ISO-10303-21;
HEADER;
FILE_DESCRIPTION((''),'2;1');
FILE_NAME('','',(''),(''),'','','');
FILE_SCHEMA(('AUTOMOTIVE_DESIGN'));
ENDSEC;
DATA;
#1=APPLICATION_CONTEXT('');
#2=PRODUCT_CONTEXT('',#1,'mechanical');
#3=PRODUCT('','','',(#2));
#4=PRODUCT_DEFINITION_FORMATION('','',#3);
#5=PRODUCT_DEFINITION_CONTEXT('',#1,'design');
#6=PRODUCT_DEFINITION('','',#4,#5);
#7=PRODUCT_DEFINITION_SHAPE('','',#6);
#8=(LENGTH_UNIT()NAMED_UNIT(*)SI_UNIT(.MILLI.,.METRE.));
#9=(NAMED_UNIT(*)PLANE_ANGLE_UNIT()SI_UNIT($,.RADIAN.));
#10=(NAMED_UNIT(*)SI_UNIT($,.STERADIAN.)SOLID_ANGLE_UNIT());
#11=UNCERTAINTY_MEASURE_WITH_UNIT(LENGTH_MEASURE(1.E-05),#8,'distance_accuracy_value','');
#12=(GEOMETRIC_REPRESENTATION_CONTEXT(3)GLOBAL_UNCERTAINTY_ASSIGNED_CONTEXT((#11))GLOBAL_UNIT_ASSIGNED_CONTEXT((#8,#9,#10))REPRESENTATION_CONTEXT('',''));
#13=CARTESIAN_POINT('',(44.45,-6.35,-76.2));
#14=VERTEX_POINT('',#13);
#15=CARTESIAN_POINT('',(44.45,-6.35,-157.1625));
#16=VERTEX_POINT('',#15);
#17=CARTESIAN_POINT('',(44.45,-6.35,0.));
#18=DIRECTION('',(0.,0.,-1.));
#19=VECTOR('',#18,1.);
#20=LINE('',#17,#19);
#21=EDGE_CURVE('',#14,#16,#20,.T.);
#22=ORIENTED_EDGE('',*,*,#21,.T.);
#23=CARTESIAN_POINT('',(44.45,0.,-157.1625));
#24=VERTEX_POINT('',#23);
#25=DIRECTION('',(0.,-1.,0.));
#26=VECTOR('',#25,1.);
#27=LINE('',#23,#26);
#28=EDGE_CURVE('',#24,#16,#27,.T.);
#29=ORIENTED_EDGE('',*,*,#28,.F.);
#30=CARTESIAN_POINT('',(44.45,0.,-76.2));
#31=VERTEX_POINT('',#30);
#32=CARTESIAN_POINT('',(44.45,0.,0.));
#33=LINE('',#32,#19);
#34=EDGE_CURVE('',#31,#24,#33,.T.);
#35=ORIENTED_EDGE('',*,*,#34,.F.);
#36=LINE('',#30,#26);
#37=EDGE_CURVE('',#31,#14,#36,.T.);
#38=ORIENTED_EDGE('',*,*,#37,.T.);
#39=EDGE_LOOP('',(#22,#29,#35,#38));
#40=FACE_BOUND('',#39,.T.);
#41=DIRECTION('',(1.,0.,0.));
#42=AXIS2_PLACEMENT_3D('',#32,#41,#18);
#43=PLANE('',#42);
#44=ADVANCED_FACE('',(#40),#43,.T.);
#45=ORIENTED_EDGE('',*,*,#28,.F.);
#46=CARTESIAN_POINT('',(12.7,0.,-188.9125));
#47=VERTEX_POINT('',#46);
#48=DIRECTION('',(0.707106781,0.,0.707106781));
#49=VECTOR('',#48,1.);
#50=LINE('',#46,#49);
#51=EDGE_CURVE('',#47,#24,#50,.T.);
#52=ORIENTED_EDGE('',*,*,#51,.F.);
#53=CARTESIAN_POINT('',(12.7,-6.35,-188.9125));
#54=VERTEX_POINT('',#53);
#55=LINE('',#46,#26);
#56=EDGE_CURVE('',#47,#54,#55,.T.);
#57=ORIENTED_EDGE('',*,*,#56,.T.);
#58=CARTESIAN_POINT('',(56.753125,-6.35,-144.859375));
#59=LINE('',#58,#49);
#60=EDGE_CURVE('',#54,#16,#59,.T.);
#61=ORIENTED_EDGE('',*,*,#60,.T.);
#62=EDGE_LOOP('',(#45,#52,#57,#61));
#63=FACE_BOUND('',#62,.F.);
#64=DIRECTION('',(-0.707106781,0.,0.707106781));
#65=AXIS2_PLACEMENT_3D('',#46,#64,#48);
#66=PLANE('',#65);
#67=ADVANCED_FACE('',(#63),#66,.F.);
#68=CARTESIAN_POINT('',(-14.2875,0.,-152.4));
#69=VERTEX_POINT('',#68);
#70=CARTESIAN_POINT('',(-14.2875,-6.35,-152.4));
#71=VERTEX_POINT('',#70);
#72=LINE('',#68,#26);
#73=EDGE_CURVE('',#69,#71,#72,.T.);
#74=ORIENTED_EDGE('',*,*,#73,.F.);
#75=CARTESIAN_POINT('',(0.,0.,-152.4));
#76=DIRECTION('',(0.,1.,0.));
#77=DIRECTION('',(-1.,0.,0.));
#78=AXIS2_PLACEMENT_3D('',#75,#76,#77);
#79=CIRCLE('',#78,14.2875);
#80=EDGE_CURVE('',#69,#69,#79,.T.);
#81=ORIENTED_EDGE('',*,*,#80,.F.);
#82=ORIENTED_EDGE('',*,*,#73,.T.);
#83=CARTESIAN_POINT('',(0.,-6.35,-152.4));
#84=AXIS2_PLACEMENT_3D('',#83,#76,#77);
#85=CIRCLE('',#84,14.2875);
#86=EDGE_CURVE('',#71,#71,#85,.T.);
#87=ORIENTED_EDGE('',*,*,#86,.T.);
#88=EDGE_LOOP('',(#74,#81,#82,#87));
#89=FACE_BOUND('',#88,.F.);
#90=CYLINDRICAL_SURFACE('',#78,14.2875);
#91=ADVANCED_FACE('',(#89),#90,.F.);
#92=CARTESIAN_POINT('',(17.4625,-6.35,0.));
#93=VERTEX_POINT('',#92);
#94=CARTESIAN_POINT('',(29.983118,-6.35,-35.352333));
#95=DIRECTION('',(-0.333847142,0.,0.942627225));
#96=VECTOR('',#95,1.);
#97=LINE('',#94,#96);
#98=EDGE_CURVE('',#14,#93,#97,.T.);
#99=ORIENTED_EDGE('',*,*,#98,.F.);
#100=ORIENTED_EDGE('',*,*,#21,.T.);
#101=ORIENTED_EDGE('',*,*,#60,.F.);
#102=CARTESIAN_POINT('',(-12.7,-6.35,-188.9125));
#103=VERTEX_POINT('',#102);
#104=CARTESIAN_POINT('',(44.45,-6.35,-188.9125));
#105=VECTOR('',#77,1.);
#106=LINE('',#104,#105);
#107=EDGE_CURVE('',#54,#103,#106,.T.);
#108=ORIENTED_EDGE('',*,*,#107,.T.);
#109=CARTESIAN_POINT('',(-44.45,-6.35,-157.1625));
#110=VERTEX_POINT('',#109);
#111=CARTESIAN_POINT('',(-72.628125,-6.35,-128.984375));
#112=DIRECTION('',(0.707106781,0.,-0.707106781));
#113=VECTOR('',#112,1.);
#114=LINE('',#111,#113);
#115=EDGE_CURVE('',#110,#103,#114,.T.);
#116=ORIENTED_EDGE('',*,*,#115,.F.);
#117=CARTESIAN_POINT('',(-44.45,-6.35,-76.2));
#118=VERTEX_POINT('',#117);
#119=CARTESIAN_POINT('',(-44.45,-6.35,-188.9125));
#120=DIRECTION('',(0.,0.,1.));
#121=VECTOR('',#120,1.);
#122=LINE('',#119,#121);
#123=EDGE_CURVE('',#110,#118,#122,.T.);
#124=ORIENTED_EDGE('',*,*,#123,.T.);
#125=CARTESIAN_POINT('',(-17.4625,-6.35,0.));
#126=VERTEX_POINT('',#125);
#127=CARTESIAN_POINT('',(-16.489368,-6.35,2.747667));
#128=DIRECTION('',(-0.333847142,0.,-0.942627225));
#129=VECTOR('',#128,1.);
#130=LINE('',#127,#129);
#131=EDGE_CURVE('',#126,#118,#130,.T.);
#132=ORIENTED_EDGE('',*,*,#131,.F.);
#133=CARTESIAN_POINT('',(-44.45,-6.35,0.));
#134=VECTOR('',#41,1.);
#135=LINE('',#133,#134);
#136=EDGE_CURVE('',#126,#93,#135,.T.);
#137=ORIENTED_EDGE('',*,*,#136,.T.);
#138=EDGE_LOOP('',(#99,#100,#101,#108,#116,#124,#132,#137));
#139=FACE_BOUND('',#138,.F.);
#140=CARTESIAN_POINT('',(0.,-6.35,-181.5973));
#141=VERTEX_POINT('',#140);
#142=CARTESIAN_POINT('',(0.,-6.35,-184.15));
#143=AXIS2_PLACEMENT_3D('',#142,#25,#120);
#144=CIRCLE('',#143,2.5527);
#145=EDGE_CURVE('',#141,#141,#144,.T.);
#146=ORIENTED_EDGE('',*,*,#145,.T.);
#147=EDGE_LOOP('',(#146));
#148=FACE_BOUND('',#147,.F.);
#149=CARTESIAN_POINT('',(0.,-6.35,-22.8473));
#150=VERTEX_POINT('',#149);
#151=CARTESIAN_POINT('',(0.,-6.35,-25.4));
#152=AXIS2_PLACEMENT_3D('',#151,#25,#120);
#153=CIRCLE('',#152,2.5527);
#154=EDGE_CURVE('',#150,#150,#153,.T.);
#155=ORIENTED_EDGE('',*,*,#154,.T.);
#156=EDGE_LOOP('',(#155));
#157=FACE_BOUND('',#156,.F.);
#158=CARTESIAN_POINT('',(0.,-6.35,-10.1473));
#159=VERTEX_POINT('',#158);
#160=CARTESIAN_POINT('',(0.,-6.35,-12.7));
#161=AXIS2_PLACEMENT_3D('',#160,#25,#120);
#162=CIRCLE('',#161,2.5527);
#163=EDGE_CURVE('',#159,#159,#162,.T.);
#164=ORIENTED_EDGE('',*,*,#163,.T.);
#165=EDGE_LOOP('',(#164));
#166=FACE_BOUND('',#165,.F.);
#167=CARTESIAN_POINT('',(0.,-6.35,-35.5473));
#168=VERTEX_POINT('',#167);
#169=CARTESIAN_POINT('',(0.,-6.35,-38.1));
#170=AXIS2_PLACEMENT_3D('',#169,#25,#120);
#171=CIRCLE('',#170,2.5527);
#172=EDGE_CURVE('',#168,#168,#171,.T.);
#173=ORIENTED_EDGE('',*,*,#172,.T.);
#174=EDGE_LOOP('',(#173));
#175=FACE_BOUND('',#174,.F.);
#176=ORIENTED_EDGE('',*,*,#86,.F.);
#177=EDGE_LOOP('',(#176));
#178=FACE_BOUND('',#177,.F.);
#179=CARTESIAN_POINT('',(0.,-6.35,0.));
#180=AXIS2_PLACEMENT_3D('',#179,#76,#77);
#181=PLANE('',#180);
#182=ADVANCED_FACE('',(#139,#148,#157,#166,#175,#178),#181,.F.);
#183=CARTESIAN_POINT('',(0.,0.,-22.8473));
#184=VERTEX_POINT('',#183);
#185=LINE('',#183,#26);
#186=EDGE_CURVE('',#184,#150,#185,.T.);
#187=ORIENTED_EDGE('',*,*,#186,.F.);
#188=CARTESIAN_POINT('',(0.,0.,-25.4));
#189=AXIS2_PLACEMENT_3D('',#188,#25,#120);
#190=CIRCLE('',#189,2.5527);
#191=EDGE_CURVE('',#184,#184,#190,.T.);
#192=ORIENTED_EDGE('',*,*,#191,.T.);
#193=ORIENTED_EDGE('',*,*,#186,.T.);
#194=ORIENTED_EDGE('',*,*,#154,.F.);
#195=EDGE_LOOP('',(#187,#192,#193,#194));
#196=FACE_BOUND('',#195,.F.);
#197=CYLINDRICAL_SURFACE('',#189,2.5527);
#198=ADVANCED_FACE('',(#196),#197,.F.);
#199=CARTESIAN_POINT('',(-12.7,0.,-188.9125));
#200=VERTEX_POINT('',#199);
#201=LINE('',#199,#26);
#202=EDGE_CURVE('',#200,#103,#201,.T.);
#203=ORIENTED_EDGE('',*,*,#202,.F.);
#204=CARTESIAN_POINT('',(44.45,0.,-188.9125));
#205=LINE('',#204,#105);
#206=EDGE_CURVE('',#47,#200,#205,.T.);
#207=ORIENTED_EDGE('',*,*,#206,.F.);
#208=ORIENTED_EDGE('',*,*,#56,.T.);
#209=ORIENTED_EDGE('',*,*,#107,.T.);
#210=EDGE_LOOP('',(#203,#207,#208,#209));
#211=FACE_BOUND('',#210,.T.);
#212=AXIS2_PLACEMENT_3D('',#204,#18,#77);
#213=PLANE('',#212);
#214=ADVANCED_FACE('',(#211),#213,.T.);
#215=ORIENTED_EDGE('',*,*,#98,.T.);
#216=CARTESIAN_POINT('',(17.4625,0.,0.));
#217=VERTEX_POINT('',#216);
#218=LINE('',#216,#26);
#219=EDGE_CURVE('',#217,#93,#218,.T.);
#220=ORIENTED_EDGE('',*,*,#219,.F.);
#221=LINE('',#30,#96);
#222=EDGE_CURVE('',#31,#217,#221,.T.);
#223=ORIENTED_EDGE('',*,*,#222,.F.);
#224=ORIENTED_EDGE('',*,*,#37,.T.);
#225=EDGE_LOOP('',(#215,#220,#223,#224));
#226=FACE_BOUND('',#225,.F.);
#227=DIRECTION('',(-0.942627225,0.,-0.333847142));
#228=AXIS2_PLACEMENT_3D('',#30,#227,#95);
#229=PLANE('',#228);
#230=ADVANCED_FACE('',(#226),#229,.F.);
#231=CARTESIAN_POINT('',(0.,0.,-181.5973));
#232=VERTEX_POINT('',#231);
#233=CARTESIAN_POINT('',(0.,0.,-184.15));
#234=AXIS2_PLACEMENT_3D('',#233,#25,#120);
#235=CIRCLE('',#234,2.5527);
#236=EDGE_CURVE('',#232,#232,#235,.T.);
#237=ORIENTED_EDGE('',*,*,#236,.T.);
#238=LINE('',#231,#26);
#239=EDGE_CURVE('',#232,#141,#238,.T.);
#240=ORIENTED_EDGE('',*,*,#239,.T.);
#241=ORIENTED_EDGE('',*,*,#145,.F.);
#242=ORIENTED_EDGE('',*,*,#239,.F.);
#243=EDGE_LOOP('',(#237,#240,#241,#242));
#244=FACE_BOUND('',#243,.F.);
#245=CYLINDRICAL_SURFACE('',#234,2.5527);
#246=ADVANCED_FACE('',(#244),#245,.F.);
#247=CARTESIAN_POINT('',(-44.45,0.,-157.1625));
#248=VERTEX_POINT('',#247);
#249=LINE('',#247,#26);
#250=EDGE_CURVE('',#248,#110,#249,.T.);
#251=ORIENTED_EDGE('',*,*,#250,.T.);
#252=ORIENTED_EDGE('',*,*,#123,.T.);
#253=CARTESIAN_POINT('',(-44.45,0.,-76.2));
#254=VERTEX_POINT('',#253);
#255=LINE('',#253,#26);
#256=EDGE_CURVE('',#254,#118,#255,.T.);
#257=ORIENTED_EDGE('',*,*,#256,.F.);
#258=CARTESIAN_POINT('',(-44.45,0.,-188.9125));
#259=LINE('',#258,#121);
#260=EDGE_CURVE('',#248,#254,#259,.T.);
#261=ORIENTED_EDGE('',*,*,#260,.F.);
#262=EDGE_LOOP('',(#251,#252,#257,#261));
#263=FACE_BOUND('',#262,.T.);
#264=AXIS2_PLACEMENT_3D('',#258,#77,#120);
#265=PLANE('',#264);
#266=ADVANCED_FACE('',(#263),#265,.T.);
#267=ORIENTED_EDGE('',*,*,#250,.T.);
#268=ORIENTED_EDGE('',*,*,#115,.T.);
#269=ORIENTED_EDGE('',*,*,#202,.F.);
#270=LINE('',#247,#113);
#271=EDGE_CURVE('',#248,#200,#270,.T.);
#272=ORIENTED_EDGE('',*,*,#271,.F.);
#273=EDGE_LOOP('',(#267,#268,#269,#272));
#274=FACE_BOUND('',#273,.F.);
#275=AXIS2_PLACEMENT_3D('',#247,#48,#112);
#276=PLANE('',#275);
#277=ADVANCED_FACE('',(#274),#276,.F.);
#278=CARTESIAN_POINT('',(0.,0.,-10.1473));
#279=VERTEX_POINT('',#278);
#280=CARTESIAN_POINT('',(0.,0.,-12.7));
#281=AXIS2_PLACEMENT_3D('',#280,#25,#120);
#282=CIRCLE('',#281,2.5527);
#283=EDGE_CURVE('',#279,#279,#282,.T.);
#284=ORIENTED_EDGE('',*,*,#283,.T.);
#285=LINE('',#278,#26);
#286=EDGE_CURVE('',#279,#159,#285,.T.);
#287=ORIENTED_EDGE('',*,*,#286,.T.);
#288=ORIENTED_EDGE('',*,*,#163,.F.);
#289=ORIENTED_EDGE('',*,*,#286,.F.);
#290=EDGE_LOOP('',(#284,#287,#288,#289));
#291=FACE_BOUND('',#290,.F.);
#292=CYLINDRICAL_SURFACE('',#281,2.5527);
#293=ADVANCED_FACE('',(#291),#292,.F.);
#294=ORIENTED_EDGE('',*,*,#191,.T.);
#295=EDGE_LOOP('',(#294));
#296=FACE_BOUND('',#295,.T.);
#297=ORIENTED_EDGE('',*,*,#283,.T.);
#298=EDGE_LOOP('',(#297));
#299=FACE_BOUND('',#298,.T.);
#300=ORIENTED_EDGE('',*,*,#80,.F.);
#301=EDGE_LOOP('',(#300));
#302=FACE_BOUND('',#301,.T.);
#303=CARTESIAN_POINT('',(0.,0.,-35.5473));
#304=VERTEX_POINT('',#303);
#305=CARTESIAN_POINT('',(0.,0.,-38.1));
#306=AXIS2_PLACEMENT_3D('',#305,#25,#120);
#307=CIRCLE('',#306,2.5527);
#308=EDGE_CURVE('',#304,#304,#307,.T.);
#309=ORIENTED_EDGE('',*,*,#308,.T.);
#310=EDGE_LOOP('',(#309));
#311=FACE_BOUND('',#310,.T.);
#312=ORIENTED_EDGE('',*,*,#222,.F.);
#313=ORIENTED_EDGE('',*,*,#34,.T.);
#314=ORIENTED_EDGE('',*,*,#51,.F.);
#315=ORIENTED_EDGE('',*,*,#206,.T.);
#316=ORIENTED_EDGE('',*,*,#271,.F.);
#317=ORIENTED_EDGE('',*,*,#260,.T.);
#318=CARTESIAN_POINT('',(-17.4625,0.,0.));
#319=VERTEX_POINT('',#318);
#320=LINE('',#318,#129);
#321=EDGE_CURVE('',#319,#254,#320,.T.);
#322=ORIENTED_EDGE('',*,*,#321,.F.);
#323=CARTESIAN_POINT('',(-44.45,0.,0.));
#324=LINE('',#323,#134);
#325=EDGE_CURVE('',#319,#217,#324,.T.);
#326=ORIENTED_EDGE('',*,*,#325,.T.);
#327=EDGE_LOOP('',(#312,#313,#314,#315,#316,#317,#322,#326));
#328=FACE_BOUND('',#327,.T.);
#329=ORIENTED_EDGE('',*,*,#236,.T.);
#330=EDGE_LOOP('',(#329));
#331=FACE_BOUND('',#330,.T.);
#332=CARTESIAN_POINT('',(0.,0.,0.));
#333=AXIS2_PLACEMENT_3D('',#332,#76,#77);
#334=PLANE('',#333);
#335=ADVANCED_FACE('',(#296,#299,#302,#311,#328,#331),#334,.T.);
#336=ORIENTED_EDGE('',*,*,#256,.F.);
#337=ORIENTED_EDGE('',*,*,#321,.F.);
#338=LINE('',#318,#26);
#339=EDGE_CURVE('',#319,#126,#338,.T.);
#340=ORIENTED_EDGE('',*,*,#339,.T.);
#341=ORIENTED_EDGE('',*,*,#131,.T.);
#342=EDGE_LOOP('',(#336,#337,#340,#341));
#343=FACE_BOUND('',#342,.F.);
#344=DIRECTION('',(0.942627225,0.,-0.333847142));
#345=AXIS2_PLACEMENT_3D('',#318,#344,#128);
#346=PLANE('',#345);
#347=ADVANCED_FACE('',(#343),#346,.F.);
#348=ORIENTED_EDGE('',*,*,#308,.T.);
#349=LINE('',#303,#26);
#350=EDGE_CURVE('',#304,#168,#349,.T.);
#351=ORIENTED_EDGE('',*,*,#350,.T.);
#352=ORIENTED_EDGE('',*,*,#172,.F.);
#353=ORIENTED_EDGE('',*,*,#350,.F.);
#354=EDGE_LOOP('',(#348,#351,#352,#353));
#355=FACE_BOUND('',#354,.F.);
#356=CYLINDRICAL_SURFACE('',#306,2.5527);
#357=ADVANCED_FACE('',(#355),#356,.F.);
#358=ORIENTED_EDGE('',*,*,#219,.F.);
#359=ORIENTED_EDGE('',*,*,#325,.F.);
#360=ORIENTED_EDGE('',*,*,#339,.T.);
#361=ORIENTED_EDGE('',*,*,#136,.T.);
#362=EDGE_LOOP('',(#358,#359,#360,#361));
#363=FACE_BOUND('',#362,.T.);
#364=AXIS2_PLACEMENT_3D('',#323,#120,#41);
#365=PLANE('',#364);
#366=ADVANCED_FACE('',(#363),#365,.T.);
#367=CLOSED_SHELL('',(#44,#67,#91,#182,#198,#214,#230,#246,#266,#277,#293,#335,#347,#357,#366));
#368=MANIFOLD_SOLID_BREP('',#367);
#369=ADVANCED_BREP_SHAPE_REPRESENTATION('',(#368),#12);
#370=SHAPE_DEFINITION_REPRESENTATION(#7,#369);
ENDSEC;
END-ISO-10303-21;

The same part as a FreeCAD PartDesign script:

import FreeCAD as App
import Part
import Sketcher
from FreeCAD import Vector
Q = App.Units.Quantity

doc = App.newDocument("Part")
params = doc.addObject("Spreadsheet::Sheet", "Params")
for row, (alias, value) in enumerate([
    ("sketch1_diameter", "1.125 in"),
    ("sketch1_width", "3.5 in"),
    ("sketch1_height", "7.4375 in"),
    ("pad1_length", "0.25 in"),
    ("sketch2_diameter", "0.201 in"),
    ("hole_diameter", "0.201 in"),
    ("sketch3_height", "3 in"),
    ("sketch3_width", "1.25 in"),
    ("sketch4_diameter", "0.201 in"),
    ("hole2_diameter", "0.201 in"),
], start=1):
    params.set(f"A{row}", alias)
    params.set(f"B{row}", "=" + value)
    params.setAlias(f"B{row}", alias)

body = doc.addObject("PartDesign::Body", "Body")

# Sketch on XZ plane
sketch1 = doc.addObject("Sketcher::SketchObject", "Sketch")
body.addObject(sketch1)
sketch1.AttachmentSupport = (doc.XZ_Plane, [""])
sketch1.MapMode = "FlatFace"
sketch1.addGeometry(Part.LineSegment(Vector(-44.45, -188.9125, 0), Vector(-44.45, 0, 0)), False)
sketch1.addGeometry(Part.LineSegment(Vector(-44.45, 0, 0), Vector(44.45, 0, 0)), False)
sketch1.addGeometry(Part.LineSegment(Vector(44.45, 0, 0), Vector(44.45, -188.9125, 0)), False)
sketch1.addGeometry(Part.LineSegment(Vector(44.45, -188.9125, 0), Vector(-44.45, -188.9125, 0)), False)
sketch1.addGeometry(Part.Circle(Vector(0, -152.4, 0), Vector(0, 0, 1), 14.2875), False)
sketch1.addConstraint(Sketcher.Constraint("Coincident", 0, 2, 1, 1))
sketch1.addConstraint(Sketcher.Constraint("Coincident", 1, 2, 2, 1))
sketch1.addConstraint(Sketcher.Constraint("Coincident", 2, 2, 3, 1))
sketch1.addConstraint(Sketcher.Constraint("Coincident", 3, 2, 0, 1))
sketch1.addConstraint(Sketcher.Constraint("Vertical", 0))
sketch1.addConstraint(Sketcher.Constraint("Horizontal", 1))
sketch1.addConstraint(Sketcher.Constraint("Vertical", 2))
sketch1.addConstraint(Sketcher.Constraint("Horizontal", 3))
sketch1.addConstraint(Sketcher.Constraint("Symmetric", 0, 2, 1, 2, -1, 1))
sketch1.addConstraint(Sketcher.Constraint("PointOnObject", 4, 3, -2))
sketch1.addConstraint(Sketcher.Constraint("Diameter", 4, Q("1.125 in")))
sketch1.addConstraint(Sketcher.Constraint("DistanceX", 1, 1, 1, 2, Q("3.5 in")))
sketch1.addConstraint(Sketcher.Constraint("DistanceY", 4, 3, -1, 1, Q("6 in")))
sketch1.addConstraint(Sketcher.Constraint("DistanceY", 0, 1, 0, 2, Q("7.4375 in")))
sketch1.setExpression("Constraints[10]", "Params.sketch1_diameter")
sketch1.setExpression("Constraints[11]", "Params.sketch1_width")
sketch1.setExpression("Constraints[13]", "Params.sketch1_height")
pad1 = doc.addObject("PartDesign::Pad", "Pad")
body.addObject(pad1)
pad1.Profile = sketch1
pad1.setExpression("Length", "Params.pad1_length")

# Sketch on XZ plane
sketch2 = doc.addObject("Sketcher::SketchObject", "Sketch001")
body.addObject(sketch2)
sketch2.AttachmentSupport = (doc.XZ_Plane, [""])
sketch2.MapMode = "FlatFace"
sketch2.addGeometry(Part.Circle(Vector(0, -184.15, 0), Vector(0, 0, 1), 2.5527), False)
sketch2.addConstraint(Sketcher.Constraint("PointOnObject", 0, 3, -2))
sketch2.addConstraint(Sketcher.Constraint("Diameter", 0, Q("0.201 in")))
sketch2.addConstraint(Sketcher.Constraint("DistanceY", 0, 3, -1, 1, Q("7.25 in")))
sketch2.setExpression("Constraints[1]", "Params.sketch2_diameter")
doc.recompute()
hole = doc.addObject("PartDesign::Hole", "Hole")
body.addObject(hole)
hole.Profile = sketch2
hole.ThreadType = "None"
hole.setExpression("Diameter", "Params.hole_diameter")
hole.DepthType = "ThroughAll"
hole.Reversed = True

# Sketch on XZ plane
sketch3 = doc.addObject("Sketcher::SketchObject", "Sketch002")
body.addObject(sketch3)
sketch3.AttachmentSupport = (doc.XZ_Plane, [""])
sketch3.MapMode = "FlatFace"
sketch3.addGeometry(Part.LineSegment(Vector(-44.45, -188.9125, 0), Vector(-44.45, -157.1625, 0)), False)
sketch3.addGeometry(Part.LineSegment(Vector(-44.45, -157.1625, 0), Vector(-12.7, -188.9125, 0)), False)
sketch3.addGeometry(Part.LineSegment(Vector(-12.7, -188.9125, 0), Vector(-44.45, -188.9125, 0)), False)
sketch3.addGeometry(Part.LineSegment(Vector(44.45, -157.1625, 0), Vector(44.45, -188.9125, 0)), False)
sketch3.addGeometry(Part.LineSegment(Vector(44.45, -188.9125, 0), Vector(12.7, -188.9125, 0)), False)
sketch3.addGeometry(Part.LineSegment(Vector(12.7, -188.9125, 0), Vector(44.45, -157.1625, 0)), False)
sketch3.addGeometry(Part.LineSegment(Vector(-44.45, -76.2, 0), Vector(-44.45, 0, 0)), False)
sketch3.addGeometry(Part.LineSegment(Vector(-44.45, 0, 0), Vector(-17.4625, 0, 0)), False)
sketch3.addGeometry(Part.LineSegment(Vector(-17.4625, 0, 0), Vector(-44.45, -76.2, 0)), False)
sketch3.addGeometry(Part.LineSegment(Vector(44.45, -76.2, 0), Vector(17.4625, 0, 0)), False)
sketch3.addGeometry(Part.LineSegment(Vector(17.4625, 0, 0), Vector(44.45, 0, 0)), False)
sketch3.addGeometry(Part.LineSegment(Vector(44.45, 0, 0), Vector(44.45, -76.2, 0)), False)
sketch3.addConstraint(Sketcher.Constraint("Coincident", 0, 2, 1, 1))
sketch3.addConstraint(Sketcher.Constraint("Coincident", 1, 2, 2, 1))
sketch3.addConstraint(Sketcher.Constraint("Coincident", 2, 2, 0, 1))
sketch3.addConstraint(Sketcher.Constraint("Coincident", 3, 2, 4, 1))
sketch3.addConstraint(Sketcher.Constraint("Coincident", 4, 2, 5, 1))
sketch3.addConstraint(Sketcher.Constraint("Coincident", 5, 2, 3, 1))
sketch3.addConstraint(Sketcher.Constraint("Coincident", 6, 2, 7, 1))
sketch3.addConstraint(Sketcher.Constraint("Coincident", 7, 2, 8, 1))
sketch3.addConstraint(Sketcher.Constraint("Coincident", 8, 2, 6, 1))
sketch3.addConstraint(Sketcher.Constraint("Coincident", 9, 2, 10, 1))
sketch3.addConstraint(Sketcher.Constraint("Coincident", 10, 2, 11, 1))
sketch3.addConstraint(Sketcher.Constraint("Coincident", 11, 2, 9, 1))
sketch3.addConstraint(Sketcher.Constraint("Vertical", 0))
sketch3.addConstraint(Sketcher.Constraint("Horizontal", 2))
sketch3.addConstraint(Sketcher.Constraint("Vertical", 3))
sketch3.addConstraint(Sketcher.Constraint("Horizontal", 4))
sketch3.addConstraint(Sketcher.Constraint("Vertical", 6))
sketch3.addConstraint(Sketcher.Constraint("Horizontal", 7))
sketch3.addConstraint(Sketcher.Constraint("Horizontal", 10))
sketch3.addConstraint(Sketcher.Constraint("Vertical", 11))
sketch3.addConstraint(Sketcher.Constraint("Symmetric", 7, 2, 9, 2, -1, 1))
sketch3.addConstraint(Sketcher.Constraint("Symmetric", 2, 2, 3, 2, -2))
sketch3.addConstraint(Sketcher.Constraint("Symmetric", 6, 2, 10, 2, -2))
sketch3.addConstraint(Sketcher.Constraint("Perpendicular", 1, 5))
sketch3.addConstraint(Sketcher.Constraint("Horizontal", 0, 2, 5, 2))
sketch3.addConstraint(Sketcher.Constraint("Horizontal", 8, 2, 11, 2))
sketch3.addConstraint(Sketcher.Constraint("Vertical", 2, 2, 6, 2))
sketch3.addConstraint(Sketcher.Constraint("Equal", 2, 4))
sketch3.addConstraint(Sketcher.Constraint("DistanceY", 6, 1, 6, 2, Q("3 in")))
sketch3.addConstraint(Sketcher.Constraint("DistanceX", 1, 2, 4, 2, Q("1 in")))
sketch3.addConstraint(Sketcher.Constraint("DistanceX", 2, 2, 2, 1, Q("1.25 in")))
sketch3.addConstraint(Sketcher.Constraint("DistanceX", 7, 2, 9, 2, Q("1.375 in")))
sketch3.addConstraint(Sketcher.Constraint("DistanceY", 0, 2, -1, 1, Q("6.1875 in")))
sketch3.setExpression("Constraints[28]", "Params.sketch3_height")
sketch3.setExpression("Constraints[30]", "Params.sketch3_width")
pocket1 = doc.addObject("PartDesign::Pocket", "Pocket")
body.addObject(pocket1)
pocket1.Profile = sketch3
pocket1.Type = "ThroughAll"
pocket1.Reversed = True

# Sketch on XZ plane
sketch4 = doc.addObject("Sketcher::SketchObject", "Sketch003")
body.addObject(sketch4)
sketch4.AttachmentSupport = (doc.XZ_Plane, [""])
sketch4.MapMode = "FlatFace"
sketch4.addGeometry(Part.Circle(Vector(0, -12.7, 0), Vector(0, 0, 1), 2.5527), False)
sketch4.addGeometry(Part.Circle(Vector(0, -25.4, 0), Vector(0, 0, 1), 2.5527), False)
sketch4.addGeometry(Part.Circle(Vector(0, -38.1, 0), Vector(0, 0, 1), 2.5527), False)
sketch4.addConstraint(Sketcher.Constraint("Equal", 0, 1))
sketch4.addConstraint(Sketcher.Constraint("Equal", 1, 2))
sketch4.addConstraint(Sketcher.Constraint("PointOnObject", 0, 3, -2))
sketch4.addConstraint(Sketcher.Constraint("PointOnObject", 1, 3, -2))
sketch4.addConstraint(Sketcher.Constraint("PointOnObject", 2, 3, -2))
sketch4.addConstraint(Sketcher.Constraint("Diameter", 0, Q("0.201 in")))
sketch4.addConstraint(Sketcher.Constraint("DistanceY", 1, 3, -1, 1, Q("1 in")))
sketch4.addConstraint(Sketcher.Constraint("DistanceY", 2, 3, 0, 3, Q("1 in")))
sketch4.addConstraint(Sketcher.Constraint("DistanceY", 0, 3, -1, 1, Q("0.5 in")))
sketch4.setExpression("Constraints[5]", "Params.sketch4_diameter")
doc.recompute()
hole2 = doc.addObject("PartDesign::Hole", "Hole001")
body.addObject(hole2)
hole2.Profile = sketch4
hole2.ThreadType = "None"
hole2.setExpression("Diameter", "Params.hole2_diameter")
hole2.DepthType = "ThroughAll"
hole2.Reversed = True

doc.recompute()
